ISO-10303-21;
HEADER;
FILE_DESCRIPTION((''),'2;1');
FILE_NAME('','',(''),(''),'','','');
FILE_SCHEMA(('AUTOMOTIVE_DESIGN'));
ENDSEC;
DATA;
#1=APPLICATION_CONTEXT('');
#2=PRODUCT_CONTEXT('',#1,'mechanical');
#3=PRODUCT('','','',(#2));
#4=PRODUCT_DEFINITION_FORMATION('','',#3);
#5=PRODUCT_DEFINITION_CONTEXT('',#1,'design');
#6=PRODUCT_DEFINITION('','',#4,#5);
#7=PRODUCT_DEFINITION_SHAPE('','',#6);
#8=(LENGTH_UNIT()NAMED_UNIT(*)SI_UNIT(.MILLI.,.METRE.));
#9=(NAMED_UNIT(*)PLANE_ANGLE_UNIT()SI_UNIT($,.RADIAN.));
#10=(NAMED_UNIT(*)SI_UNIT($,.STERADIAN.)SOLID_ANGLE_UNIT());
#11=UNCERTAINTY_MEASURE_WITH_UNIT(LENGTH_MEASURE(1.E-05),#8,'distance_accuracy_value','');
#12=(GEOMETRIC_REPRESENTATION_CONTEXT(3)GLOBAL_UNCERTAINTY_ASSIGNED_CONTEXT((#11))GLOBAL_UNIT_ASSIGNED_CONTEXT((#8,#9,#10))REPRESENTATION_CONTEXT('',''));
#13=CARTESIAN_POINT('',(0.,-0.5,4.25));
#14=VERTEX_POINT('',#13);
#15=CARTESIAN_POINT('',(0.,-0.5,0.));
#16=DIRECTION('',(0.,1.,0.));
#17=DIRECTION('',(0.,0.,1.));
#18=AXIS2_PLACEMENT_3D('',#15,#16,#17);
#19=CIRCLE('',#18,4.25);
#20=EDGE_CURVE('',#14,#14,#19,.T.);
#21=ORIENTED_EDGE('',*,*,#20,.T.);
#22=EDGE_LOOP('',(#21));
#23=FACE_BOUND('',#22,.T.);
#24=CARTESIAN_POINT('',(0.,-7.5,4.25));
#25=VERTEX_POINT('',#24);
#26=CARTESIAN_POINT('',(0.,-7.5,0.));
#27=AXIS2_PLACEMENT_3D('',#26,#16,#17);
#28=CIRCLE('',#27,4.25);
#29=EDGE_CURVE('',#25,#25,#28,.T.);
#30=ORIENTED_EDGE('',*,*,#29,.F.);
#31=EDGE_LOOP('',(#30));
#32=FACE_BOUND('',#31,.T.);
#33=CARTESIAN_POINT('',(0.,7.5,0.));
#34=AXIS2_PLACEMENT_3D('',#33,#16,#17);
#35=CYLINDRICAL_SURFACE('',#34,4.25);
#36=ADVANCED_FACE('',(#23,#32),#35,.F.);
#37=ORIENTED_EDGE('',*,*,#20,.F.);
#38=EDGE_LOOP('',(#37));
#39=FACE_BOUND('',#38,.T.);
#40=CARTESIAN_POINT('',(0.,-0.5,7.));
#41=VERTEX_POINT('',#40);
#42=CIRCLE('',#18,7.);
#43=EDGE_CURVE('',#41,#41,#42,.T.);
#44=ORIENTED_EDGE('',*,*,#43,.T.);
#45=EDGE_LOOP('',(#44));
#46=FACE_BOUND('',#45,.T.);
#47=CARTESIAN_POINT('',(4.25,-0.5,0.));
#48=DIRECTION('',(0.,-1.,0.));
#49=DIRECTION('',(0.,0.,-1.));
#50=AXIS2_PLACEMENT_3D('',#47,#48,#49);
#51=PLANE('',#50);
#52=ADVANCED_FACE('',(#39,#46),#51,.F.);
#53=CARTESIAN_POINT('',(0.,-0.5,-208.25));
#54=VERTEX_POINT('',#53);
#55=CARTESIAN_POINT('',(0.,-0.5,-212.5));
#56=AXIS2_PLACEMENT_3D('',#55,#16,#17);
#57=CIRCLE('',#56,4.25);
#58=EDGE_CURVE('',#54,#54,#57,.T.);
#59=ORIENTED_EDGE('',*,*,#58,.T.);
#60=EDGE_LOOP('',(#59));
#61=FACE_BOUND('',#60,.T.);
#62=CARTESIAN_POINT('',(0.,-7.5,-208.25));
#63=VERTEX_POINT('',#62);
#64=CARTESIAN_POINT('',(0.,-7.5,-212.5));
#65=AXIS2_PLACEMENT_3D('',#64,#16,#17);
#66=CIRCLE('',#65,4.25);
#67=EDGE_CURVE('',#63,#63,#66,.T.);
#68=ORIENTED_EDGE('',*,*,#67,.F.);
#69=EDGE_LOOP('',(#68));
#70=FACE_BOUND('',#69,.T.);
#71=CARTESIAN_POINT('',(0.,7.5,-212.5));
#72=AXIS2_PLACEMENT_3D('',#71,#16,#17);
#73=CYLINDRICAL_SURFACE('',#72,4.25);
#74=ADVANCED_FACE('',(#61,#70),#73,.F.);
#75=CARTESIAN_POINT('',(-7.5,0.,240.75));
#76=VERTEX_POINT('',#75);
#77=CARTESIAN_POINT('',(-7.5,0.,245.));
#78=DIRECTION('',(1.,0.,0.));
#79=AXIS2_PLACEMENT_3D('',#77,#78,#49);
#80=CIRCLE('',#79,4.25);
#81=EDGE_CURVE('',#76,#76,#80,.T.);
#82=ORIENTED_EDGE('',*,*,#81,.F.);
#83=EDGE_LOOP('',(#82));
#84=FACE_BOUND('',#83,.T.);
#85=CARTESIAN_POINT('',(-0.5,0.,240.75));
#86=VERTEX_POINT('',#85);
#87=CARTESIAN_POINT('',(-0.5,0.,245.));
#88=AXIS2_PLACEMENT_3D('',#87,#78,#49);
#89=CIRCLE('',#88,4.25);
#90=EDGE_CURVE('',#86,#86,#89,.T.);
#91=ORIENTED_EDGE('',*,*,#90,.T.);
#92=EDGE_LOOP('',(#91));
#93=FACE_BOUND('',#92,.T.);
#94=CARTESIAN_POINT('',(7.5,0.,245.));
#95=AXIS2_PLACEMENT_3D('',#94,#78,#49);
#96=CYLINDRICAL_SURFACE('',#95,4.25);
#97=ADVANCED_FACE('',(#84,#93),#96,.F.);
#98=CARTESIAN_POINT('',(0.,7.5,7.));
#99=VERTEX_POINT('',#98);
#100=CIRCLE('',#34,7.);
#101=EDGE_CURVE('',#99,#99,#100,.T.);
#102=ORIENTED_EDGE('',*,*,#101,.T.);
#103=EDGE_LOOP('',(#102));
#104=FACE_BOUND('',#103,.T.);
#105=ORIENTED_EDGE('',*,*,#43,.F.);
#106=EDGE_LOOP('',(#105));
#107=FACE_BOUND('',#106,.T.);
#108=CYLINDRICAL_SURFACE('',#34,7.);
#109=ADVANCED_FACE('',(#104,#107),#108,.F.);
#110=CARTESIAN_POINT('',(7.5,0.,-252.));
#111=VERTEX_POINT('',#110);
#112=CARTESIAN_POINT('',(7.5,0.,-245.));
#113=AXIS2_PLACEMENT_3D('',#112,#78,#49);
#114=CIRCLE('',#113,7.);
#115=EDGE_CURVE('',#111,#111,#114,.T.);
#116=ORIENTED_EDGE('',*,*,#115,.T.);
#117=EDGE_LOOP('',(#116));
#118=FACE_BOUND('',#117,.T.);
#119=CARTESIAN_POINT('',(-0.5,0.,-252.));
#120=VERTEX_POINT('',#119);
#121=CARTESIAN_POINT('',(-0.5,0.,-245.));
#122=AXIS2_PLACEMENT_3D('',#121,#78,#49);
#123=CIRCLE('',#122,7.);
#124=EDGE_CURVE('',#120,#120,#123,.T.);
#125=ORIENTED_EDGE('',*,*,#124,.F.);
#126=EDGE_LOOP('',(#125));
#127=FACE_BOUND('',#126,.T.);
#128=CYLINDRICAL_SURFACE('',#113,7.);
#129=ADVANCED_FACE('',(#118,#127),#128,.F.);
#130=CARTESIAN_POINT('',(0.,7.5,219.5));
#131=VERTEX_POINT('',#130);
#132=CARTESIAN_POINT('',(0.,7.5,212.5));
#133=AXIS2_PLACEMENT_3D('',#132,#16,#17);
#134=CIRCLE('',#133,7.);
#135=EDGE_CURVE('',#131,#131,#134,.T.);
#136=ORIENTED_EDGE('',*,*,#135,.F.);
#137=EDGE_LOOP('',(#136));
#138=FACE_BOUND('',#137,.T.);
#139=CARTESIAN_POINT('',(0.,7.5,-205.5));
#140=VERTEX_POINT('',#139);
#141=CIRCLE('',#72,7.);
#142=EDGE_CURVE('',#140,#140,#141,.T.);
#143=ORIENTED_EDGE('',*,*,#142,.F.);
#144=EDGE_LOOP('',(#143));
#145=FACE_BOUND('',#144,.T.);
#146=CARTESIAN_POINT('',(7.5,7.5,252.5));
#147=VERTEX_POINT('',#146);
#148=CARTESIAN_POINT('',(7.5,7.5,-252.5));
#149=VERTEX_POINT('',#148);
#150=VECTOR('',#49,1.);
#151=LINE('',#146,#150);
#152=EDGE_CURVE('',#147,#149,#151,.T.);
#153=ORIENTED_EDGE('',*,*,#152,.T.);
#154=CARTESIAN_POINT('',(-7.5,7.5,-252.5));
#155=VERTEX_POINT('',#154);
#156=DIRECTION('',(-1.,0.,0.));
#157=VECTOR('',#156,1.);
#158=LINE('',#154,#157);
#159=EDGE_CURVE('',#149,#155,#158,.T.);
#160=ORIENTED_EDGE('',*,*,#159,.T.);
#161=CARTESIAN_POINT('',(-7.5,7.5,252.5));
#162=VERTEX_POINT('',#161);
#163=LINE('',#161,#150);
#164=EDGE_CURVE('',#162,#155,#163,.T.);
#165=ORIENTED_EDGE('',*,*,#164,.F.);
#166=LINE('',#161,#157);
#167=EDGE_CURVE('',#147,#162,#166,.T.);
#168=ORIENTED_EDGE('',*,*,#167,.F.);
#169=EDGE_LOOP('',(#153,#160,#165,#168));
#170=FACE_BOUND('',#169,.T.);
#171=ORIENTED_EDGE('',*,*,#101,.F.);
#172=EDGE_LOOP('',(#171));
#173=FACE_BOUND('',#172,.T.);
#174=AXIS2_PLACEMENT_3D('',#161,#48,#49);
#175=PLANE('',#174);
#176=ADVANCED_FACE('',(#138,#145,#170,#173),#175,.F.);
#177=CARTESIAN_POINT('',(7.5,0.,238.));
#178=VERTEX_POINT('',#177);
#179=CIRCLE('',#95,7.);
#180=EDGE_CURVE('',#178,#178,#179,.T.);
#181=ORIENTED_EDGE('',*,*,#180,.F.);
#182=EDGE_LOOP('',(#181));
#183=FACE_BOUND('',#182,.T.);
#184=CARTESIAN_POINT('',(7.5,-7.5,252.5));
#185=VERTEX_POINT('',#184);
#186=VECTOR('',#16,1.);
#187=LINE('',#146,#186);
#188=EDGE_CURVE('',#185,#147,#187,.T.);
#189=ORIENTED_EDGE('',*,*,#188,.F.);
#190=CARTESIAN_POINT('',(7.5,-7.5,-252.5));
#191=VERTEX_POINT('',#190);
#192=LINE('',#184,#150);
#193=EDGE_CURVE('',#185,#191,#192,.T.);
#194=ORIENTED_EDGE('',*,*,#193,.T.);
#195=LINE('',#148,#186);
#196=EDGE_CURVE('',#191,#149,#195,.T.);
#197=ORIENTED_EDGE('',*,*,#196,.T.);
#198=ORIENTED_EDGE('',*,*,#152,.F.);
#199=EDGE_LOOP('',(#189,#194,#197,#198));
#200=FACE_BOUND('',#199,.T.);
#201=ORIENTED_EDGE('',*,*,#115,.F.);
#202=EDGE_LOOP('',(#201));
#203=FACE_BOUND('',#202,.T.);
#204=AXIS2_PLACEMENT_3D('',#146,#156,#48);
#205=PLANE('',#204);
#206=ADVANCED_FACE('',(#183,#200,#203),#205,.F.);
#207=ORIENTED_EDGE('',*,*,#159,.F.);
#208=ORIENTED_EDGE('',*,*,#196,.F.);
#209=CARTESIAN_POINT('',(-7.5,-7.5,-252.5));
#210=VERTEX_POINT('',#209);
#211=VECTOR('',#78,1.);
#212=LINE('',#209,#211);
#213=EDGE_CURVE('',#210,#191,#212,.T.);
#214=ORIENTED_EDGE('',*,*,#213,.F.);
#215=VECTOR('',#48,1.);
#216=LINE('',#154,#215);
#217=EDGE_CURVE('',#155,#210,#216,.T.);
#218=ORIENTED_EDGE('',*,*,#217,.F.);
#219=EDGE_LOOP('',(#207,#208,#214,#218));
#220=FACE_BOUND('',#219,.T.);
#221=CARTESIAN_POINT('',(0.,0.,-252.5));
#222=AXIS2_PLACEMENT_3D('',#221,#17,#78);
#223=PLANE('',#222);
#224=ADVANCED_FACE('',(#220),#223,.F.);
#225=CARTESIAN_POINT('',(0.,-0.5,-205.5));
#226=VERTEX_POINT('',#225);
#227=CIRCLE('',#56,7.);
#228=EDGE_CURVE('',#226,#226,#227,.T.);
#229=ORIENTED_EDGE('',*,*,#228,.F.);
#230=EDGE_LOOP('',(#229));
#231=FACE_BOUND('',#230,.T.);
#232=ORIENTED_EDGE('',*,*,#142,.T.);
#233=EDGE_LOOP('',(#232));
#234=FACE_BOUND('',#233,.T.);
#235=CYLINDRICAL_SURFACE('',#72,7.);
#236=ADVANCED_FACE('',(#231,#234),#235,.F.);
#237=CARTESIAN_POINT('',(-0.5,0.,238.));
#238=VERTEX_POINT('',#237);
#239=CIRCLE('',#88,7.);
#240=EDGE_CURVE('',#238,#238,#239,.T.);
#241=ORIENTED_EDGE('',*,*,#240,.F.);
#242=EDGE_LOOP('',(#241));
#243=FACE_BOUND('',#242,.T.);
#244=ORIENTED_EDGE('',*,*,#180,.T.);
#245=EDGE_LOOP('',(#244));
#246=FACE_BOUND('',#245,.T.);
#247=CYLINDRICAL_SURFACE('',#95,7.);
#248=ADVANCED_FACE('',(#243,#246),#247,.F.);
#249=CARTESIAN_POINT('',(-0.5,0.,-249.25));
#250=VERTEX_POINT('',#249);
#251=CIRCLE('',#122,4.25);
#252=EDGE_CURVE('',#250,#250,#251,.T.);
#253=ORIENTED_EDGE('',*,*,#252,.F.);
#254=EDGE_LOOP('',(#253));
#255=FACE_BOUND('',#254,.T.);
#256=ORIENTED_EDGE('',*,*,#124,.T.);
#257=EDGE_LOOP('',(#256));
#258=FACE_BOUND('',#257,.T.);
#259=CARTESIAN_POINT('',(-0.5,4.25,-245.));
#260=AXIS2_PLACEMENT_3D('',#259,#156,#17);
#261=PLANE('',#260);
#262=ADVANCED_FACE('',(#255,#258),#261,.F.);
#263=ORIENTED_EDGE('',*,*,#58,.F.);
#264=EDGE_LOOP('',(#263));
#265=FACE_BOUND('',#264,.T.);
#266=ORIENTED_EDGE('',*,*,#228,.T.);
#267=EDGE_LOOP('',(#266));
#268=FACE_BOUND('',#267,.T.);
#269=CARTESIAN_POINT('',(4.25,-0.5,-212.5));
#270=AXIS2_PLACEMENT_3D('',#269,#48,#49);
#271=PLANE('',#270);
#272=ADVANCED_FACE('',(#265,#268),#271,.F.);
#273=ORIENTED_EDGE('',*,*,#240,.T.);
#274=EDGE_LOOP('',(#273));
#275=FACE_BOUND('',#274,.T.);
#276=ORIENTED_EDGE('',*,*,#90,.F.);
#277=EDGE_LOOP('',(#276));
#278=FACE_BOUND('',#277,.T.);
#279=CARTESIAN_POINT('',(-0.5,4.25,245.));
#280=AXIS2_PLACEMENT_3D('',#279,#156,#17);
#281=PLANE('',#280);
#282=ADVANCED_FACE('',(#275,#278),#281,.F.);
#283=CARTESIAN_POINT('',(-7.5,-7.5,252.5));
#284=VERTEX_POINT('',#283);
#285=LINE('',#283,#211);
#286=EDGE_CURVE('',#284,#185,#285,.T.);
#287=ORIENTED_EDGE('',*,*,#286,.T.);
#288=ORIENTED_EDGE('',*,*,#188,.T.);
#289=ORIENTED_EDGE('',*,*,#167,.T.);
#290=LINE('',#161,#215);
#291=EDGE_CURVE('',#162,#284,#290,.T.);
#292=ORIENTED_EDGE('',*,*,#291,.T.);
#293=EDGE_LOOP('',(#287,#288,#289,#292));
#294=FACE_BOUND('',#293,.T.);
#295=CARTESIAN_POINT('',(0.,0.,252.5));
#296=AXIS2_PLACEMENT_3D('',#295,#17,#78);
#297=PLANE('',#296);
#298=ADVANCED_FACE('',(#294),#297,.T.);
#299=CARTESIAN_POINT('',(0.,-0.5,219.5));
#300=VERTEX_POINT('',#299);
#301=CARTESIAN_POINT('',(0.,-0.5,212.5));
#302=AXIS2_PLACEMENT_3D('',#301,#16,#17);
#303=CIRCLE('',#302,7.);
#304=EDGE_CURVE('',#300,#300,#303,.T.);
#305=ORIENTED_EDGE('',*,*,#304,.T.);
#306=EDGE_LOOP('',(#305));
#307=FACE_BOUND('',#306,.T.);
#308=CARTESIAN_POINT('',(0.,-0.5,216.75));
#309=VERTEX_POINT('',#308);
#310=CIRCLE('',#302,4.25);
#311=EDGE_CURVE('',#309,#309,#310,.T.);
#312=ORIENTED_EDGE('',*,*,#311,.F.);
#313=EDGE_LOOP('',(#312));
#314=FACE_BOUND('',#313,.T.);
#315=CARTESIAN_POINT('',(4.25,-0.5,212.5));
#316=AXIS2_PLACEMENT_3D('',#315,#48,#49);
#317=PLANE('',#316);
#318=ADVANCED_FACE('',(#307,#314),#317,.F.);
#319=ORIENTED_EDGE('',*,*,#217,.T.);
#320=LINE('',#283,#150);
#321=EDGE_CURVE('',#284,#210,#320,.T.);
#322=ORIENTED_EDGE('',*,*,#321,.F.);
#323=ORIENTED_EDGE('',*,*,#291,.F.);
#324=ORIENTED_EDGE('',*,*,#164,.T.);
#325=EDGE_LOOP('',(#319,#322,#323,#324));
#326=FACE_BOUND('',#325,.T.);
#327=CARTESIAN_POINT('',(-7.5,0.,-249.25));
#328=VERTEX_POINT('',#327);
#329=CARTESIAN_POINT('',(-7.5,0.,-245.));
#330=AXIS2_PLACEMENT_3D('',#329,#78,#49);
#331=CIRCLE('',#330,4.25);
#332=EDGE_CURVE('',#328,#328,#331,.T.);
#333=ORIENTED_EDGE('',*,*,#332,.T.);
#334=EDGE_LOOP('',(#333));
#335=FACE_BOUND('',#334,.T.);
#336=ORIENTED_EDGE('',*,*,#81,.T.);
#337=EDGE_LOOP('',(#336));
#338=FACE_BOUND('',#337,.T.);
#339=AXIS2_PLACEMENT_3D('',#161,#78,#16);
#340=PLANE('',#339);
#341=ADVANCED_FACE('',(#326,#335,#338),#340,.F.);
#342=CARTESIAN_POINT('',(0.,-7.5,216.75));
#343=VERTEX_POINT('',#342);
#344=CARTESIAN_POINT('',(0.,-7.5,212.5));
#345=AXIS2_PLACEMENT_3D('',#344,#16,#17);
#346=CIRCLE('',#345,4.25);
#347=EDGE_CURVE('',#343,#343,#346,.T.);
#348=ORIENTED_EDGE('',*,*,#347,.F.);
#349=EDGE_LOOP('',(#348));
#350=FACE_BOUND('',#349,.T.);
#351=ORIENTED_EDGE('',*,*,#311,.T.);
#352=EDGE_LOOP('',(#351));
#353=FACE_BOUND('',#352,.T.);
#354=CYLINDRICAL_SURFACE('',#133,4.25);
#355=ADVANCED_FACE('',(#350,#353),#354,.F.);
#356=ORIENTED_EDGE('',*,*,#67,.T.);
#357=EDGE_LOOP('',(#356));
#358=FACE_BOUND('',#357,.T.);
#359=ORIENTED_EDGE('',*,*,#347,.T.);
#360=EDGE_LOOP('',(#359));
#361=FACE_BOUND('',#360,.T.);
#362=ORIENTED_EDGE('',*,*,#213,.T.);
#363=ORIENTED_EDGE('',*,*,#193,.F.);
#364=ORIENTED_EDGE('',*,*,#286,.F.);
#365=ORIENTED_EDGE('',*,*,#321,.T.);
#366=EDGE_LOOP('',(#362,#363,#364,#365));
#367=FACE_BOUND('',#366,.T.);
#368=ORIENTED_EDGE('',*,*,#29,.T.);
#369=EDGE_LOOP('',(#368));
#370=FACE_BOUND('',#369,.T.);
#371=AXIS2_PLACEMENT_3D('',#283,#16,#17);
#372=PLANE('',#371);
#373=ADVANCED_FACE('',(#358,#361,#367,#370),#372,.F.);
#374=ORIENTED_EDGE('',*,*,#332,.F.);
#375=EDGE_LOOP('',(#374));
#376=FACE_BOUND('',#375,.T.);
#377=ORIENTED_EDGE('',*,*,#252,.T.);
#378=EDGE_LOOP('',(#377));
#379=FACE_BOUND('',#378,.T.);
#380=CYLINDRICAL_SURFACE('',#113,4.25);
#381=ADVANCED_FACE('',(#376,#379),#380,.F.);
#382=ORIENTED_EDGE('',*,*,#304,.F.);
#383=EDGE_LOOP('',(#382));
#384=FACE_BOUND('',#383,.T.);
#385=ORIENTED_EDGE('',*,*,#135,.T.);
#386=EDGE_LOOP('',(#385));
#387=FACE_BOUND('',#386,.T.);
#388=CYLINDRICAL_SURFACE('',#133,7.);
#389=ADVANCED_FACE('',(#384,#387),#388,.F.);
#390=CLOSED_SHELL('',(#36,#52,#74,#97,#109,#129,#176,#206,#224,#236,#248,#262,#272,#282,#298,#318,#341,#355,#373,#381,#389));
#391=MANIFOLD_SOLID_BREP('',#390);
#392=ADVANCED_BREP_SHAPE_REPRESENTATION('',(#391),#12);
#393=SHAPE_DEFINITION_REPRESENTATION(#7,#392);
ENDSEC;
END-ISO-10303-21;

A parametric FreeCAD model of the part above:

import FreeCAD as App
import Part
import Sketcher

V = App.Vector

doc = App.newDocument("Part")
body = doc.addObject("PartDesign::Body", "Body")

# Sketch on XY plane
sketch1 = body.newObject("Sketcher::SketchObject", "Sketch")
sketch1.AttachmentSupport = (doc.getObject("XY_Plane"), [""])
sketch1.MapMode = "FlatFace"
sketch1.addGeometry([
    Part.LineSegment(V(-8, 8, 0), V(-8, -8, 0)),
    Part.LineSegment(V(-8, -8, 0), V(8, -8, 0)),
    Part.LineSegment(V(8, -8, 0), V(8, 8, 0)),
    Part.LineSegment(V(8, 8, 0), V(-8, 8, 0)),
], False)
sketch1.addConstraint([
    Sketcher.Constraint("Coincident", 0, 2, 1, 1),
    Sketcher.Constraint("Coincident", 1, 2, 2, 1),
    Sketcher.Constraint("Coincident", 2, 2, 3, 1),
    Sketcher.Constraint("Coincident", 3, 2, 0, 1),
    Sketcher.Constraint("Vertical", 0),
    Sketcher.Constraint("Horizontal", 1),
    Sketcher.Constraint("Vertical", 2),
    Sketcher.Constraint("Horizontal", 3),
    Sketcher.Constraint("Symmetric", 0, 2, 2, 2, -1, 1),
    Sketcher.Constraint("Equal", 3, 0),
    Sketcher.Constraint("DistanceX", 1, 1, 1, 2, 15.0),
])
pad1 = body.newObject("PartDesign::Pad", "Pad")
pad1.Profile = sketch1
pad1.Length = 505
pad1.Midplane = True

# Sketch on YZ plane
sketch2 = body.newObject("Sketcher::SketchObject", "Sketch001")
sketch2.AttachmentSupport = (doc.getObject("YZ_Plane"), [""])
sketch2.MapMode = "FlatFace"
sketch2.AttachmentOffset = App.Placement(V(0, 0, 7.5), App.Rotation())
sketch2.addGeometry(Part.Circle(V(0, -245, 0), V(0, 0, 1), 4.2), False)
sketch2.addConstraint([
    Sketcher.Constraint("PointOnObject", 0, 3, -2),
    Sketcher.Constraint("Diameter", 0, 8.5),
    Sketcher.Constraint("DistanceY", 0, 3, -1, 1, 245.0),
])
doc.recompute()
hole = body.newObject("PartDesign::Hole", "Hole")
hole.Profile = sketch2
hole.ThreadType = "None"
hole.Diameter = 8.5
hole.DepthType = "Dimension"
hole.Depth = 15
hole.DrillPoint = "Flat"
hole.HoleCutType = "Counterbore"
hole.HoleCutDiameter = 14
hole.HoleCutDepth = 8
doc.recompute()

mirrored = body.newObject("PartDesign::Mirrored", "Mirrored")
mirrored.Originals = [hole]
mirrored.MirrorPlane = (doc.getObject("XY_Plane"), [""])
body.Tip = mirrored

# Sketch on XZ plane
sketch3 = body.newObject("Sketcher::SketchObject", "Sketch002")
sketch3.AttachmentSupport = (doc.getObject("XZ_Plane"), [""])
sketch3.MapMode = "FlatFace"
sketch3.AttachmentOffset = App.Placement(V(0, 0, -7.5), App.Rotation())
sketch3.addGeometry(Part.Circle(V(0, 212.5, 0), V(0, 0, 1), 4.2), False)
sketch3.addConstraint([
    Sketcher.Constraint("PointOnObject", 0, 3, -2),
    Sketcher.Constraint("Diameter", 0, 8.5),
    Sketcher.Constraint("DistanceY", -1, 1, 0, 3, 212.5),
])
doc.recompute()
hole2 = body.newObject("PartDesign::Hole", "Hole001")
hole2.Profile = sketch3
hole2.ThreadType = "None"
hole2.Diameter = 8.5
hole2.DepthType = "Dimension"
hole2.Depth = 15
hole2.DrillPoint = "Flat"
hole2.HoleCutType = "Counterbore"
hole2.HoleCutDiameter = 14
hole2.HoleCutDepth = 8
hole2.Reversed = True
doc.recompute()

linearpattern = body.newObject("PartDesign::LinearPattern", "LinearPattern")
linearpattern.Originals = [hole2]
linearpattern.Direction = (doc.getObject("Z_Axis"), [""])
linearpattern.Mode = "offset"
linearpattern.Offset = 212.5
linearpattern.Occurrences = 3
linearpattern.Reversed = True
body.Tip = linearpattern

doc.recompute()
